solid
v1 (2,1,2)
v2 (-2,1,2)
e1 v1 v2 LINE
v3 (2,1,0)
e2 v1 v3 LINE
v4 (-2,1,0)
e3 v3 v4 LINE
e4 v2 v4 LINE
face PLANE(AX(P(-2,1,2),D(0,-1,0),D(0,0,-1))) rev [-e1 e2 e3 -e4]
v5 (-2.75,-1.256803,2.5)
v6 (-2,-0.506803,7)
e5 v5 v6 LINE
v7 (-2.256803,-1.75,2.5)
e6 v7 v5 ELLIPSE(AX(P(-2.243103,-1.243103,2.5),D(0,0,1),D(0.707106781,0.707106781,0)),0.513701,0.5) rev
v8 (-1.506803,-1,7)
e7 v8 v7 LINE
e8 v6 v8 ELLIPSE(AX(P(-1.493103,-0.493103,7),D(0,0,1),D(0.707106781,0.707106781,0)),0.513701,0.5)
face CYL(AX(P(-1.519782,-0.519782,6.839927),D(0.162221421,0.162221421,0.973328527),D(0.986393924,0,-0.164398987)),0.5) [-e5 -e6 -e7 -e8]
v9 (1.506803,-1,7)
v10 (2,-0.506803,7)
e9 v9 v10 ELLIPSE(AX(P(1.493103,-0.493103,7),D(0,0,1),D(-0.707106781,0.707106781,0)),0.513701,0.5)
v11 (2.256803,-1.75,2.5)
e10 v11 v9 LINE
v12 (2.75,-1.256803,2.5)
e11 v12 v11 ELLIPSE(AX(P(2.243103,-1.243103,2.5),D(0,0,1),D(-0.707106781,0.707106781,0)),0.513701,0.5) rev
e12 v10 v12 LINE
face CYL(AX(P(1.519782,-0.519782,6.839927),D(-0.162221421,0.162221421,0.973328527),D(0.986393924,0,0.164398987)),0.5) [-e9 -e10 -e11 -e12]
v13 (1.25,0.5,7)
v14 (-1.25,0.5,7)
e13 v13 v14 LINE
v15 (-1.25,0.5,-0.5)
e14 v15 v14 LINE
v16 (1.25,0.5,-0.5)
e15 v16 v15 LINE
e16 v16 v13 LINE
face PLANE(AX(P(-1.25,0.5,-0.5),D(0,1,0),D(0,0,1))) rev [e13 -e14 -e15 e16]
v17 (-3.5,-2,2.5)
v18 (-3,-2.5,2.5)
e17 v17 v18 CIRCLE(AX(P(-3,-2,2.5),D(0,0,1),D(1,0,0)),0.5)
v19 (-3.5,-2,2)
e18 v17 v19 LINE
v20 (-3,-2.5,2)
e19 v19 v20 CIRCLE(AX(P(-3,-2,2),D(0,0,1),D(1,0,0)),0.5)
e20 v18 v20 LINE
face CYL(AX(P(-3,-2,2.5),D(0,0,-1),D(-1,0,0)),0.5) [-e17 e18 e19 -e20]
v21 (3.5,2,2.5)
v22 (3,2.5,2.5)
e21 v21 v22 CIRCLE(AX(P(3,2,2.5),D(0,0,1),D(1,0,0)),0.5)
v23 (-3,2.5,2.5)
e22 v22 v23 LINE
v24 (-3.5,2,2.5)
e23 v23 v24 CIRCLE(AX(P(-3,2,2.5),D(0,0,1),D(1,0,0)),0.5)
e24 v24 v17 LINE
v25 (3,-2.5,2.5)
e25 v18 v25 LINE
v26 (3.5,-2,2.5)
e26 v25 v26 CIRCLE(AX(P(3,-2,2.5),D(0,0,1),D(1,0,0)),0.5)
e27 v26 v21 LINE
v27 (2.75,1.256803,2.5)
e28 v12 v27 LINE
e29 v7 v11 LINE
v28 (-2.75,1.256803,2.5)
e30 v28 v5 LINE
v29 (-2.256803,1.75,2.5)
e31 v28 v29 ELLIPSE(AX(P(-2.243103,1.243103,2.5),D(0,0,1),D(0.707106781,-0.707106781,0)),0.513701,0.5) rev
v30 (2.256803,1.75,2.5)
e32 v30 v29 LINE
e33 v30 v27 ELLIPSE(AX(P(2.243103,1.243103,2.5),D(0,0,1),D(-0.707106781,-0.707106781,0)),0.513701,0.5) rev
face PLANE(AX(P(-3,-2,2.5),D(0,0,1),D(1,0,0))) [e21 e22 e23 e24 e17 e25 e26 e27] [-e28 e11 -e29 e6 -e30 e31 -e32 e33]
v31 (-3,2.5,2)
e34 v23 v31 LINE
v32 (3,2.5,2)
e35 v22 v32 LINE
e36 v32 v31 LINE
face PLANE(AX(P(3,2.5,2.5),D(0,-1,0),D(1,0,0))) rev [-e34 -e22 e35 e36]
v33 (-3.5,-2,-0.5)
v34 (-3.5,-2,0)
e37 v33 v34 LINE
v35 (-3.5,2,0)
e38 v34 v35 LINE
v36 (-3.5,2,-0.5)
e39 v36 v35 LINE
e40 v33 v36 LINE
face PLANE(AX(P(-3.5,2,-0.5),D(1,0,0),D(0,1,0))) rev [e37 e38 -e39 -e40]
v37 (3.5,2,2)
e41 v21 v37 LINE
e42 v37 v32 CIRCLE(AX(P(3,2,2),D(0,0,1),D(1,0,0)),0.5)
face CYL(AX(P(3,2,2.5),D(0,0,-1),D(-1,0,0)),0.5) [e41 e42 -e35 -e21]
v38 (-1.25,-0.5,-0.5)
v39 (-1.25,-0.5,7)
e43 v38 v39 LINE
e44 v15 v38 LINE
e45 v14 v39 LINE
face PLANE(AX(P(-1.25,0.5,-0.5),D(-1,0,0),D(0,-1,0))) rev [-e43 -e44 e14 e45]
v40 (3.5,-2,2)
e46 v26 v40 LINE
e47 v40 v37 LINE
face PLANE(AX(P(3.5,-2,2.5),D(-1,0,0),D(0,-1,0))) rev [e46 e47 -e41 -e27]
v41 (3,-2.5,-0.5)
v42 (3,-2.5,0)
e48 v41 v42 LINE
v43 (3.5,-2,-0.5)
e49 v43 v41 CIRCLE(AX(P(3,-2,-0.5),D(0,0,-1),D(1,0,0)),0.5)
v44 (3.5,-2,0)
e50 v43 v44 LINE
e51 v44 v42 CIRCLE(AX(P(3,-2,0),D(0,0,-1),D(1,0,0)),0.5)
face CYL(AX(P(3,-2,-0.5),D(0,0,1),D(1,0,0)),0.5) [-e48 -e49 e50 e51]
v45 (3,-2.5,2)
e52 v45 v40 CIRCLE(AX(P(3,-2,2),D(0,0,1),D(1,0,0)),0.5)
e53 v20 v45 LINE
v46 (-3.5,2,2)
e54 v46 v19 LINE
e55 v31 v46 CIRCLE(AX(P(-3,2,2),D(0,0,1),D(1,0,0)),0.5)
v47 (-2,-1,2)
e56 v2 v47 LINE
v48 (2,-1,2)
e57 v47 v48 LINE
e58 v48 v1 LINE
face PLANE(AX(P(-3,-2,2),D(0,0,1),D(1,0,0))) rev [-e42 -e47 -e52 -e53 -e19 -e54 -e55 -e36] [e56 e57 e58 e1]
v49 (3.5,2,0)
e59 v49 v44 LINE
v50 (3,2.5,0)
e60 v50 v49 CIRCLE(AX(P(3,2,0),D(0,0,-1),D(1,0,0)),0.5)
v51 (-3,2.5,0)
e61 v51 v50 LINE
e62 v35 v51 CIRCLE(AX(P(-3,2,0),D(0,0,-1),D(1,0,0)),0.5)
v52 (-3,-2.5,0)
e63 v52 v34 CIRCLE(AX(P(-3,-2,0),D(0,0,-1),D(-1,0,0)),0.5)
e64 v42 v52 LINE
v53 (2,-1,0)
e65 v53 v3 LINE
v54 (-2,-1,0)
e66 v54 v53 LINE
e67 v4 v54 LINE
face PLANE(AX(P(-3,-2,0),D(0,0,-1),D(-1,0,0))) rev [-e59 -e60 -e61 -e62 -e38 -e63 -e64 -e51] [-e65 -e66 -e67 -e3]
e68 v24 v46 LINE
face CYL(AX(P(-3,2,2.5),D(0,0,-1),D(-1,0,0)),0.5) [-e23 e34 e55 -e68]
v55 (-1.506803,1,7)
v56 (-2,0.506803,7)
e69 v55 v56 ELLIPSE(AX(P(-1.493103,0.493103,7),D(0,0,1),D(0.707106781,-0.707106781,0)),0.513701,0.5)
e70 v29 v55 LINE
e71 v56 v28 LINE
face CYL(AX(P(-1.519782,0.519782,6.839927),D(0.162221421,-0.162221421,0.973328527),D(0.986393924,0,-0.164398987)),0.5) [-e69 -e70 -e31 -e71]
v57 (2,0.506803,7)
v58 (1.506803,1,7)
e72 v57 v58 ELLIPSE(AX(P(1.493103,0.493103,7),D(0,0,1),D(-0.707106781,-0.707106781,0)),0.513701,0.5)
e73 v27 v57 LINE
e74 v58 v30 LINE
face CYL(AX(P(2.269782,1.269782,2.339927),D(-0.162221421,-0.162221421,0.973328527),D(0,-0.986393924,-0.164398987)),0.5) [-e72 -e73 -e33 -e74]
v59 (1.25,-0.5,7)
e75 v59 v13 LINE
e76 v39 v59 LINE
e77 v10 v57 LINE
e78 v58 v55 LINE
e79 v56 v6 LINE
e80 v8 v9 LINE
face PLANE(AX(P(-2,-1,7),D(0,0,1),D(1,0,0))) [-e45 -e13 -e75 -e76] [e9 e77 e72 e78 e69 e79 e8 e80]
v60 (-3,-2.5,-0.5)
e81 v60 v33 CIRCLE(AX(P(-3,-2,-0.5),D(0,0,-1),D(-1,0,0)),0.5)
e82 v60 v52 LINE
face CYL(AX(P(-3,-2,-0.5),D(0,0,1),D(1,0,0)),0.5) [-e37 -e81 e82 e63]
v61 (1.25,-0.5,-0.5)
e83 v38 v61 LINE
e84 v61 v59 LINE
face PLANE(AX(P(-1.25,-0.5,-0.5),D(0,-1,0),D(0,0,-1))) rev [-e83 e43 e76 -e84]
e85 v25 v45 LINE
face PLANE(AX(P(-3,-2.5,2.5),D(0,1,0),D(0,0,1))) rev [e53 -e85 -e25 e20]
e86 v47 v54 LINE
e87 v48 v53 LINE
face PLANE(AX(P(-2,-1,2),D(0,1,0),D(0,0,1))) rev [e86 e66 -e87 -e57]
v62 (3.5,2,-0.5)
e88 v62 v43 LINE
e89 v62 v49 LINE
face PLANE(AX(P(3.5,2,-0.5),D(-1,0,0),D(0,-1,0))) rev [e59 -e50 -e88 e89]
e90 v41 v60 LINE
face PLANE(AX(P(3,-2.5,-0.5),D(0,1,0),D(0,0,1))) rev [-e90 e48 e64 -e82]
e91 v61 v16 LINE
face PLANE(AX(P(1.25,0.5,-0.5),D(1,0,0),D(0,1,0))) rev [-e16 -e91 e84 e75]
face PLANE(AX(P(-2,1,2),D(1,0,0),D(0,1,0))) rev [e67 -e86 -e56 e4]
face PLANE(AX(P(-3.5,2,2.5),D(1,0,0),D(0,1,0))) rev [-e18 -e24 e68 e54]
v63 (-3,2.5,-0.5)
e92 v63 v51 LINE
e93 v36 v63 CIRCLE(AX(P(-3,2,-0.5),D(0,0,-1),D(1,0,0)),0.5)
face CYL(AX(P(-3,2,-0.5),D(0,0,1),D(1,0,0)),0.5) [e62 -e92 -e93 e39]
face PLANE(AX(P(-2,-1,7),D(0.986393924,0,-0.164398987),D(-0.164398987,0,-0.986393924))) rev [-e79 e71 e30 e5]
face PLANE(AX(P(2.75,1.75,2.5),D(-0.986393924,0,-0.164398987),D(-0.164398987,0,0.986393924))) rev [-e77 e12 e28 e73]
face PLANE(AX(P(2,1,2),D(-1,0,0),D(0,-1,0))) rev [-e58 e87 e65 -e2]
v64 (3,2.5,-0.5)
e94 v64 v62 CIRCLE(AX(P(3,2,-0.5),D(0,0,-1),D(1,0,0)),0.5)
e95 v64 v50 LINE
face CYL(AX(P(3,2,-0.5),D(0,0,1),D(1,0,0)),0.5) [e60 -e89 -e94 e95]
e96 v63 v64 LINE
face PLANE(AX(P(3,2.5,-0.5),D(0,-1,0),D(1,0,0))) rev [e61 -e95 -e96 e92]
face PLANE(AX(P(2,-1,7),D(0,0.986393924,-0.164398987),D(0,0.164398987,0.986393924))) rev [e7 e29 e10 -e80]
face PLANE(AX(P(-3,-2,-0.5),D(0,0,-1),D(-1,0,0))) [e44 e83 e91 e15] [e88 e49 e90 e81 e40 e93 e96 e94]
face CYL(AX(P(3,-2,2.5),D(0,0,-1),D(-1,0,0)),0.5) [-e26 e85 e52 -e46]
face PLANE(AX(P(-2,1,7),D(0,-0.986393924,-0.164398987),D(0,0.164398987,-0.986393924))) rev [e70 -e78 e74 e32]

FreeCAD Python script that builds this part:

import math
import FreeCAD as App
import Part
import Sketcher

V = App.Vector


def edges_at(feature, points):
    """Names of the edges that pass closest to the given points."""
    edges = feature.Shape.Edges
    near = lambda p: min(range(len(edges)), key=lambda i: edges[i].distToShape(Part.Vertex(*p))[0])
    return sorted({f"Edge{near(p) + 1}" for p in points})

doc = App.newDocument("Part")
body = doc.addObject("PartDesign::Body", "Body")

sketch1 = body.newObject("Sketcher::SketchObject", "Sketch")
sketch1.AttachmentSupport = (doc.getObject("XY_Plane"), [""])
sketch1.MapMode = "FlatFace"
sketch1.addGeometry([
    Part.LineSegment(V(-2, 1, 0), V(-2, -1, 0)),
    Part.LineSegment(V(-2, -1, 0), V(2, -1, 0)),
    Part.LineSegment(V(2, -1, 0), V(2, 1, 0)),
    Part.LineSegment(V(2, 1, 0), V(-2, 1, 0)),
], False)
sketch1.addConstraint([
    Sketcher.Constraint("Coincident", 0, 2, 1, 1),
    Sketcher.Constraint("Coincident", 1, 2, 2, 1),
    Sketcher.Constraint("Coincident", 2, 2, 3, 1),
    Sketcher.Constraint("Coincident", 3, 2, 0, 1),
    Sketcher.Constraint("Vertical", 0),
    Sketcher.Constraint("Horizontal", 1),
    Sketcher.Constraint("Vertical", 2),
    Sketcher.Constraint("Horizontal", 3),
    Sketcher.Constraint("Symmetric", 0, 2, 2, 2, -1, 1),
    Sketcher.Constraint("DistanceX", 1, 1, 1, 2, 4.0),
    Sketcher.Constraint("DistanceY", 0, 2, 0, 1, 2.0),
])
pad1 = body.newObject("PartDesign::Pad", "Pad")
pad1.Profile = sketch1
pad1.Length = 2

sketch2 = body.newObject("Sketcher::SketchObject", "Sketch001")
sketch2.AttachmentSupport = (doc.getObject("XY_Plane"), [""])
sketch2.MapMode = "FlatFace"
sketch2.addGeometry([
    Part.LineSegment(V(-3, 2.5, 0), V(3, 2.5, 0)),
    Part.ArcOfCircle(Part.Circle(V(3, 2, 0), V(0, 0, 1), 0.5), math.radians(0), math.radians(90)),
    Part.LineSegment(V(3.5, 2, 0), V(3.5, -2, 0)),
    Part.ArcOfCircle(Part.Circle(V(3, -2, 0), V(0, 0, 1), 0.5), math.radians(-90), math.radians(0)),
    Part.LineSegment(V(3, -2.5, 0), V(-3, -2.5, 0)),
    Part.ArcOfCircle(Part.Circle(V(-3, -2, 0), V(0, 0, 1), 0.5), math.radians(180), math.radians(270)),
    Part.LineSegment(V(-3.5, -2, 0), V(-3.5, 2, 0)),
    Part.ArcOfCircle(Part.Circle(V(-3, 2, 0), V(0, 0, 1), 0.5), math.radians(90), math.radians(180)),
], False)
sketch2.addConstraint([
    Sketcher.Constraint("Tangent", 0, 2, 1, 2),
    Sketcher.Constraint("Tangent", 1, 1, 2, 1),
    Sketcher.Constraint("Tangent", 2, 2, 3, 2),
    Sketcher.Constraint("Tangent", 3, 1, 4, 1),
    Sketcher.Constraint("Tangent", 4, 2, 5, 2),
    Sketcher.Constraint("Tangent", 5, 1, 6, 1),
    Sketcher.Constraint("Tangent", 6, 2, 7, 2),
    Sketcher.Constraint("Tangent", 7, 1, 0, 1),
    Sketcher.Constraint("Horizontal", 0),
    Sketcher.Constraint("Vertical", 2),
    Sketcher.Constraint("Horizontal", 4),
    Sketcher.Constraint("Vertical", 6),
    Sketcher.Constraint("Equal", 1, 3),
    Sketcher.Constraint("Equal", 3, 5),
    Sketcher.Constraint("Equal", 5, 7),
    Sketcher.Constraint("Symmetric", 1, 3, 5, 3, -1, 1),
    Sketcher.Constraint("Radius", 1, 0.5),
    Sketcher.Constraint("DistanceX", 0, 1, 0, 2, 6.0),
    Sketcher.Constraint("DistanceY", 2, 2, 2, 1, 4.0),
])
pad2 = body.newObject("PartDesign::Pad", "Pad001")
pad2.Profile = sketch2
pad2.Length = 0.5
pad2.Reversed = True

sketch3 = body.newObject("Sketcher::SketchObject", "Sketch002")
sketch3.AttachmentSupport = (doc.getObject("XY_Plane"), [""])
sketch3.MapMode = "FlatFace"
sketch3.AttachmentOffset = App.Placement(V(0, 0, 2), App.Rotation())
sketch3.addGeometry([
    Part.LineSegment(V(-3, -2.5, 0), V(3, -2.5, 0)),
    Part.ArcOfCircle(Part.Circle(V(3, -2, 0), V(0, 0, 1), 0.5), math.radians(-90), math.radians(0)),
    Part.LineSegment(V(3.5, -2, 0), V(3.5, 2, 0)),
    Part.ArcOfCircle(Part.Circle(V(3, 2, 0), V(0, 0, 1), 0.5), math.radians(0), math.radians(90)),
    Part.LineSegment(V(3, 2.5, 0), V(-3, 2.5, 0)),
    Part.ArcOfCircle(Part.Circle(V(-3, 2, 0), V(0, 0, 1), 0.5), math.radians(90), math.radians(180)),
    Part.LineSegment(V(-3.5, 2, 0), V(-3.5, -2, 0)),
    Part.ArcOfCircle(Part.Circle(V(-3, -2, 0), V(0, 0, 1), 0.5), math.radians(180), math.radians(270)),
], False)
sketch3.addConstraint([
    Sketcher.Constraint("Tangent", 0, 2, 1, 1),
    Sketcher.Constraint("Tangent", 1, 2, 2, 1),
    Sketcher.Constraint("Tangent", 2, 2, 3, 1),
    Sketcher.Constraint("Tangent", 3, 2, 4, 1),
    Sketcher.Constraint("Tangent", 4, 2, 5, 1),
    Sketcher.Constraint("Tangent", 5, 2, 6, 1),
    Sketcher.Constraint("Tangent", 6, 2, 7, 1),
    Sketcher.Constraint("Tangent", 7, 2, 0, 1),
    Sketcher.Constraint("Horizontal", 0),
    Sketcher.Constraint("Vertical", 2),
    Sketcher.Constraint("Horizontal", 4),
    Sketcher.Constraint("Vertical", 6),
    Sketcher.Constraint("Equal", 1, 3),
    Sketcher.Constraint("Equal", 3, 5),
    Sketcher.Constraint("Equal", 5, 7),
    Sketcher.Constraint("Symmetric", 1, 3, 5, 3, -1, 1),
    Sketcher.Constraint("Radius", 1, 0.5),
    Sketcher.Constraint("DistanceX", 0, 1, 0, 2, 6.0),
    Sketcher.Constraint("DistanceY", 2, 1, 2, 2, 4.0),
])
pad3 = body.newObject("PartDesign::Pad", "Pad002")
pad3.Profile = sketch3
pad3.Length = 0.5

sketch4 = body.newObject("Sketcher::SketchObject", "Sketch003")
sketch4.AttachmentSupport = (doc.getObject("XY_Plane"), [""])
sketch4.MapMode = "FlatFace"
sketch4.AttachmentOffset = App.Placement(V(0, 0, 2.5), App.Rotation())
sketch4.addGeometry([
    Part.LineSegment(V(-2.8, 1.8, 0), V(-2.8, -1.8, 0)),
    Part.LineSegment(V(-2.8, -1.8, 0), V(2.8, -1.8, 0)),
    Part.LineSegment(V(2.8, -1.8, 0), V(2.8, 1.8, 0)),
    Part.LineSegment(V(2.8, 1.8, 0), V(-2.8, 1.8, 0)),
], False)
sketch4.addConstraint([
    Sketcher.Constraint("Coincident", 0, 2, 1, 1),
    Sketcher.Constraint("Coincident", 1, 2, 2, 1),
    Sketcher.Constraint("Coincident", 2, 2, 3, 1),
    Sketcher.Constraint("Coincident", 3, 2, 0, 1),
    Sketcher.Constraint("Vertical", 0),
    Sketcher.Constraint("Horizontal", 1),
    Sketcher.Constraint("Vertical", 2),
    Sketcher.Constraint("Horizontal", 3),
    Sketcher.Constraint("Symmetric", 0, 2, 2, 2, -1, 1),
    Sketcher.Constraint("DistanceX", 1, 1, 1, 2, 5.5),
    Sketcher.Constraint("DistanceY", 0, 2, 0, 1, 3.5),
])

sketch5 = body.newObject("Sketcher::SketchObject", "Sketch004")
sketch5.AttachmentSupport = (doc.getObject("XY_Plane"), [""])
sketch5.MapMode = "FlatFace"
sketch5.AttachmentOffset = App.Placement(V(0, 0, 7), App.Rotation())
sketch5.addGeometry([
    Part.LineSegment(V(-2, 1, 0), V(-2, -1, 0)),
    Part.LineSegment(V(-2, -1, 0), V(2, -1, 0)),
    Part.LineSegment(V(2, -1, 0), V(2, 1, 0)),
    Part.LineSegment(V(2, 1, 0), V(-2, 1, 0)),
], False)
sketch5.addConstraint([
    Sketcher.Constraint("Coincident", 0, 2, 1, 1),
    Sketcher.Constraint("Coincident", 1, 2, 2, 1),
    Sketcher.Constraint("Coincident", 2, 2, 3, 1),
    Sketcher.Constraint("Coincident", 3, 2, 0, 1),
    Sketcher.Constraint("Vertical", 0),
    Sketcher.Constraint("Horizontal", 1),
    Sketcher.Constraint("Vertical", 2),
    Sketcher.Constraint("Horizontal", 3),
    Sketcher.Constraint("Symmetric", 0, 2, 2, 2, -1, 1),
    Sketcher.Constraint("DistanceX", 1, 1, 1, 2, 4.0),
    Sketcher.Constraint("DistanceY", 0, 2, 0, 1, 2.0),
])

additiveloft = body.newObject("PartDesign::AdditiveLoft", "AdditiveLoft")
additiveloft.Profile = sketch4
additiveloft.Sections = [sketch5]
doc.recompute()

fillet = body.newObject("PartDesign::Fillet", "Fillet")
fillet.Base = (additiveloft, edges_at(additiveloft, [
    (-2.375, 1.375, 4.75),
    (2.375, 1.375, 4.75),
    (-2.375, -1.375, 4.75),
    (2.375, -1.375, 4.75),
]))
fillet.Radius = 0.5

sketch6 = body.newObject("Sketcher::SketchObject", "Sketch005")
sketch6.AttachmentSupport = (doc.getObject("XY_Plane"), [""])
sketch6.MapMode = "FlatFace"
sketch6.AttachmentOffset = App.Placement(V(0, 0, 7), App.Rotation())
sketch6.addGeometry([
    Part.LineSegment(V(-1.2, 0.5, 0), V(-1.2, -0.5, 0)),
    Part.LineSegment(V(-1.2, -0.5, 0), V(1.2, -0.5, 0)),
    Part.LineSegment(V(1.2, -0.5, 0), V(1.2, 0.5, 0)),
    Part.LineSegment(V(1.2, 0.5, 0), V(-1.2, 0.5, 0)),
], False)
sketch6.addConstraint([
    Sketcher.Constraint("Coincident", 0, 2, 1, 1),
    Sketcher.Constraint("Coincident", 1, 2, 2, 1),
    Sketcher.Constraint("Coincident", 2, 2, 3, 1),
    Sketcher.Constraint("Coincident", 3, 2, 0, 1),
    Sketcher.Constraint("Vertical", 0),
    Sketcher.Constraint("Horizontal", 1),
    Sketcher.Constraint("Vertical", 2),
    Sketcher.Constraint("Horizontal", 3),
    Sketcher.Constraint("Symmetric", 0, 2, 2, 2, -1, 1),
    Sketcher.Constraint("DistanceY", 0, 2, 0, 1, 1.0),
    Sketcher.Constraint("DistanceX", 1, 1, 1, 2, 2.5),
])
pocket1 = body.newObject("PartDesign::Pocket", "Pocket")
pocket1.Profile = sketch6
pocket1.Type = "ThroughAll"

doc.recompute()
